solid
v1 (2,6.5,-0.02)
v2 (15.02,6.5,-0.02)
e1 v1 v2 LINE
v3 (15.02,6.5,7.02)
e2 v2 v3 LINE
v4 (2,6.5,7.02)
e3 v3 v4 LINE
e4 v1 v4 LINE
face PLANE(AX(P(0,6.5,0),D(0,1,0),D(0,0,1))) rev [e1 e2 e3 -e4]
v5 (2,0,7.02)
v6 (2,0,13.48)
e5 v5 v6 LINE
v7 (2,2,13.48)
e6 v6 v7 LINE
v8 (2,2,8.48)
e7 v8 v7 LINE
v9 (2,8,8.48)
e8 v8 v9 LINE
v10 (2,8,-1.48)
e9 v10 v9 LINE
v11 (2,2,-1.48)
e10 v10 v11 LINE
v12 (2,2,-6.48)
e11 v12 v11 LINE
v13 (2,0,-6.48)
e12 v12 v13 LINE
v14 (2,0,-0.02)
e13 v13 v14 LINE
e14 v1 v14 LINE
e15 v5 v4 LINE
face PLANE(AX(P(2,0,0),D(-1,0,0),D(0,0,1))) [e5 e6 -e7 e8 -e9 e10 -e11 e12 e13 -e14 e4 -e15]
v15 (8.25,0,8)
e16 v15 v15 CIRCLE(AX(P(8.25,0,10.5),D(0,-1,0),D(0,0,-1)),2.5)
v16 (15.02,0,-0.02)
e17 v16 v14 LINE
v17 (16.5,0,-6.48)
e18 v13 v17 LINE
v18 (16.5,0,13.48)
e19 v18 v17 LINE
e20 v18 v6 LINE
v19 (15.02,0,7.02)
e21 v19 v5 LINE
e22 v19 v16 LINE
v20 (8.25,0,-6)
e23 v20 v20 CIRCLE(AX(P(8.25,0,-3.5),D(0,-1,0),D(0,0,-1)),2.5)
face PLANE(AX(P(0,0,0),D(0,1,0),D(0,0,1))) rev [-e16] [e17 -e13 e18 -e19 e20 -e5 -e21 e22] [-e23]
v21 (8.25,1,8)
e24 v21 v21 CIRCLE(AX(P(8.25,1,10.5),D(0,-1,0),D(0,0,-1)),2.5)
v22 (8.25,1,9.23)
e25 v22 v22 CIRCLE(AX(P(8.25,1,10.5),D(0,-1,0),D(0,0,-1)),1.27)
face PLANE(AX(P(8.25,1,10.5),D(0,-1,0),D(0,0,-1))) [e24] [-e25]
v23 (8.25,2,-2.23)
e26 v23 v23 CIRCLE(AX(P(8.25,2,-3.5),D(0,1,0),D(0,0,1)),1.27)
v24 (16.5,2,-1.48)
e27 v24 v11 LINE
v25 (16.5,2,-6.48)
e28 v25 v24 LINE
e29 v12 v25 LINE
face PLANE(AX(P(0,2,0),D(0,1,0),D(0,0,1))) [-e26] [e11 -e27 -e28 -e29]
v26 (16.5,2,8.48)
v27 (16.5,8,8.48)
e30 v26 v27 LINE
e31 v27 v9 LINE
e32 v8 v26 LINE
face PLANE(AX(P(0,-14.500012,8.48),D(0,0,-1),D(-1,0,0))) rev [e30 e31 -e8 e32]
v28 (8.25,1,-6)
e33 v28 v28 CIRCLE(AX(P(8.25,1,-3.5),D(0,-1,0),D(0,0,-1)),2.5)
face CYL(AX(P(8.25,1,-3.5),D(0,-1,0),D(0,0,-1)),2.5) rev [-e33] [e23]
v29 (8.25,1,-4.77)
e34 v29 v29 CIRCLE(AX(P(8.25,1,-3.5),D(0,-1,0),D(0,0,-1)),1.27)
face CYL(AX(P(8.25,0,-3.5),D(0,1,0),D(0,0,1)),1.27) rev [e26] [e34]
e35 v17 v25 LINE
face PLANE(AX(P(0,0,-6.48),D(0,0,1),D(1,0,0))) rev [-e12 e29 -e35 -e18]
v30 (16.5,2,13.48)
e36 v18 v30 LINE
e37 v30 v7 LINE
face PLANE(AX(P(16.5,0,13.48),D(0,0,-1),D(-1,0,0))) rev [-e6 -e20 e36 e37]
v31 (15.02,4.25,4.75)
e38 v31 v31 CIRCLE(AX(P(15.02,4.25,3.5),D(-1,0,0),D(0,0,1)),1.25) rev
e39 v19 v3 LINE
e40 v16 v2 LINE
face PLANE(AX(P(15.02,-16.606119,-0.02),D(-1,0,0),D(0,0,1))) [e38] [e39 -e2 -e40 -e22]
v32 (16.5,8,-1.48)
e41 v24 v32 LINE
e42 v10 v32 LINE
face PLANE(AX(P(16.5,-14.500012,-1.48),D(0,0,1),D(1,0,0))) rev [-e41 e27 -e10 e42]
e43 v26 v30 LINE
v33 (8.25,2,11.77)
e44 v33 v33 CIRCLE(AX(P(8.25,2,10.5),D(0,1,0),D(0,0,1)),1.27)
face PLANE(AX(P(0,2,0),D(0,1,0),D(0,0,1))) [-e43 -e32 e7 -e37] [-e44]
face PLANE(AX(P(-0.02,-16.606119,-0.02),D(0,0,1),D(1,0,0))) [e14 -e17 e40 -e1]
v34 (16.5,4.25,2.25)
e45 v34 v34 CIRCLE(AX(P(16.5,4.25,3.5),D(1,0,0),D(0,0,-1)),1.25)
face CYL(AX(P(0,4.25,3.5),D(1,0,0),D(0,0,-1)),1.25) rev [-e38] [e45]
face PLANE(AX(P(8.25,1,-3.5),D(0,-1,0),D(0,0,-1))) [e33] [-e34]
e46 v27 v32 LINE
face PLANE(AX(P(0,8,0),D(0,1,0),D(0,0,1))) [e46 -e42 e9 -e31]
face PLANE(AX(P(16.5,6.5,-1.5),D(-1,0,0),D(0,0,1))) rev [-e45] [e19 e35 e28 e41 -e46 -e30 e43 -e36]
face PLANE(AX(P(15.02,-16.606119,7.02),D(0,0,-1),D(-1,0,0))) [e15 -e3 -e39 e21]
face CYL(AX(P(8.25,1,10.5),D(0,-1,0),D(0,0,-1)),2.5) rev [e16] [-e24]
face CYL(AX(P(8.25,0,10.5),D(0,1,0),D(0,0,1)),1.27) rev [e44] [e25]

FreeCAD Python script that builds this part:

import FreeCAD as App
import Part
import Sketcher


def add_polygon(sketch, points):
    """Adds a closed chain of lines whose ends are joined by coincident constraints."""
    first, n = sketch.GeometryCount, len(points)
    for a, b in zip(points, points[1:] + points[:1]):
        sketch.addGeometry(Part.LineSegment(App.Vector(*a, 0), App.Vector(*b, 0)), False)
    for i in range(n):
        sketch.addConstraint(Sketcher.Constraint("Coincident", first + i, 2, first + (i + 1) % n, 1))

doc = App.newDocument("Part")
params = doc.addObject("Spreadsheet::Sheet", "Params")
for row, (alias, value) in enumerate([
    ("sketch1_width", "15 mm"),
    ("sketch1_height", "7 mm"),
    ("sketch1_height2", "10 mm"),
    ("sketch1_width2", "16.5 mm"),
    ("pad1_length", "6.5 mm"),
    ("sketch2_height", "10 mm"),
    ("sketch2_width", "16.5 mm"),
    ("pad2_length", "1.5 mm"),
    ("sketch3_diameter", "2.5 mm"),
    ("sketch4_height", "5 mm"),
    ("sketch4_width", "16.5 mm"),
    ("pad3_length", "2 mm"),
    ("sketch5_diameter", "2.5 mm"),
    ("pocket2_length", "10 mm"),
    ("sketch6_diameter", "5 mm"),
    ("pocket3_length", "1 mm"),
    ("sketch7_diameter", "2.54 mm"),
    ("sketch8_width", "16.5 mm"),
    ("sketch9_width", "16.5 mm"),
    ("sketch9_height", "0.02 mm"),
    ("pocket6_length", "23.758743 mm"),
    ("pocket6_length2", "6 mm"),
    ("sketch10_width", "15.04 mm"),
    ("sketch10_height", "7.04 mm"),
    ("pocket7_length", "6.5 mm"),
    ("pocket8_length", "2 mm"),
], start=1):
    params.set(f"A{row}", alias)
    params.set(f"B{row}", "=" + value)
    params.setAlias(f"B{row}", alias)

body = doc.addObject("PartDesign::Body", "Body")

sketch1 = doc.addObject("Sketcher::SketchObject", "Sketch")
body.addObject(sketch1)
sketch1.AttachmentSupport = (doc.XZ_Plane, [""])
sketch1.MapMode = "FlatFace"
add_polygon(sketch1, [(16.5, -1.5), (0, -1.5), (0, 0), (15, 0), (15, 7), (0, 7), (0, 8.5), (16.5, 8.5)])
sketch1.addConstraint([
    Sketcher.Constraint("Horizontal", 0),
    Sketcher.Constraint("Vertical", 1),
    Sketcher.Constraint("Horizontal", 2),
    Sketcher.Constraint("Vertical", 3),
    Sketcher.Constraint("Horizontal", 4),
    Sketcher.Constraint("Vertical", 5),
    Sketcher.Constraint("Horizontal", 6),
    Sketcher.Constraint("Vertical", 7),
    Sketcher.Constraint("Coincident", 1, 2, -1, 1),
    Sketcher.Constraint("PointOnObject", 4, 2, -2),
    Sketcher.Constraint("Equal", 1, 5),
    Sketcher.Constraint("DistanceX", 2, 1, 2, 2, 15.0),
    Sketcher.Constraint("DistanceY", 3, 1, 3, 2, 7.0),
    Sketcher.Constraint("DistanceY", 7, 2, 7, 1, 10.0),
    Sketcher.Constraint("DistanceX", 0, 2, 0, 1, 16.5),
])
sketch1.setExpression("Constraints[19]", "Params.sketch1_width")
sketch1.setExpression("Constraints[20]", "Params.sketch1_height")
sketch1.setExpression("Constraints[21]", "Params.sketch1_height2")
sketch1.setExpression("Constraints[22]", "Params.sketch1_width2")
pad1 = doc.addObject("PartDesign::Pad", "Pad")
body.addObject(pad1)
pad1.Profile = sketch1
pad1.setExpression("Length", "Params.pad1_length")
pad1.Reversed = True

sketch2 = doc.addObject("Sketcher::SketchObject", "Sketch001")
body.addObject(sketch2)
sketch2.AttachmentSupport = (doc.XZ_Plane, [""])
sketch2.MapMode = "FlatFace"
sketch2.AttachmentOffset = App.Placement(App.Vector(0, 0, -6.5), App.Rotation())
add_polygon(sketch2, [(0, 8), (16, 8), (16, -2), (0, -2)])
sketch2.addConstraint([
    Sketcher.Constraint("Horizontal", 0),
    Sketcher.Constraint("Vertical", 1),
    Sketcher.Constraint("Horizontal", 2),
    Sketcher.Constraint("Vertical", 3),
    Sketcher.Constraint("PointOnObject", 2, 2, -2),
    Sketcher.Constraint("DistanceY", 1, 2, 1, 1, 10.0),
    Sketcher.Constraint("DistanceX", 0, 1, 0, 2, 16.5),
    Sketcher.Constraint("DistanceY", -1, 1, 0, 2, 8.5),
])
sketch2.setExpression("Constraints[9]", "Params.sketch2_height")
sketch2.setExpression("Constraints[10]", "Params.sketch2_width")
pad2 = doc.addObject("PartDesign::Pad", "Pad001")
body.addObject(pad2)
pad2.Profile = sketch2
pad2.setExpression("Length", "Params.pad2_length")
pad2.Reversed = True

sketch3 = doc.addObject("Sketcher::SketchObject", "Sketch002")
body.addObject(sketch3)
sketch3.AttachmentSupport = (doc.YZ_Plane, [""])
sketch3.MapMode = "FlatFace"
sketch3.AttachmentOffset = App.Placement(App.Vector(0, 0, 16.5), App.Rotation())
sketch3.addGeometry(Part.Circle(App.Vector(4.2, 3.5, 0), App.Vector(0, 0, 1), 1.2), False)
sketch3.addConstraint([
    Sketcher.Constraint("Diameter", 0, 2.5),
    Sketcher.Constraint("DistanceY", -1, 1, 0, 3, 3.5),
    Sketcher.Constraint("DistanceX", -1, 1, 0, 3, 4.25),
])
sketch3.setExpression("Constraints[0]", "Params.sketch3_diameter")
pocket1 = doc.addObject("PartDesign::Pocket", "Pocket")
body.addObject(pocket1)
pocket1.Profile = sketch3
pocket1.Type = "ThroughAll"

sketch4 = doc.addObject("Sketcher::SketchObject", "Sketch003")
body.addObject(sketch4)
sketch4.AttachmentSupport = (doc.XZ_Plane, [""])
sketch4.MapMode = "FlatFace"
add_polygon(sketch4, [(0, 14), (0, 8), (16, 8), (16, 14)])
add_polygon(sketch4, [(0, -2), (0, -6), (16, -6), (16, -2)])
sketch4.addConstraint([
    Sketcher.Constraint("Vertical", 0),
    Sketcher.Constraint("Horizontal", 1),
    Sketcher.Constraint("Vertical", 2),
    Sketcher.Constraint("Horizontal", 3),
    Sketcher.Constraint("Vertical", 4),
    Sketcher.Constraint("Horizontal", 5),
    Sketcher.Constraint("Vertical", 6),
    Sketcher.Constraint("Horizontal", 7),
    Sketcher.Constraint("PointOnObject", 0, 2, -2),
    Sketcher.Constraint("PointOnObject", 4, 2, -2),
    Sketcher.Constraint("Vertical", 2, 2, 5, 2),
    Sketcher.Constraint("Equal", 2, 4),
    Sketcher.Constraint("DistanceY", 0, 2, 0, 1, 5.0),
    Sketcher.Constraint("DistanceX", 1, 1, 1, 2, 16.5),
    Sketcher.Constraint("DistanceY", 4, 2, 0, 2, 15.0),
    Sketcher.Constraint("DistanceY", -1, 1, 0, 2, 8.5),
])
sketch4.setExpression("Constraints[20]", "Params.sketch4_height")
sketch4.setExpression("Constraints[21]", "Params.sketch4_width")
pad3 = doc.addObject("PartDesign::Pad", "Pad002")
body.addObject(pad3)
pad3.Profile = sketch4
pad3.setExpression("Length", "Params.pad3_length")
pad3.Reversed = True

sketch5 = doc.addObject("Sketcher::SketchObject", "Sketch004")
body.addObject(sketch5)
sketch5.AttachmentSupport = (doc.XZ_Plane, [""])
sketch5.MapMode = "FlatFace"
sketch5.addGeometry([
    Part.Circle(App.Vector(8.2, 10.5, 0), App.Vector(0, 0, 1), 1.2),
    Part.Circle(App.Vector(8.2, -3.5, 0), App.Vector(0, 0, 1), 1.2),
], False)
sketch5.addConstraint([
    Sketcher.Constraint("Equal", 0, 1),
    Sketcher.Constraint("Vertical", 0, 3, 1, 3),
    Sketcher.Constraint("Diameter", 0, 2.5),
    Sketcher.Constraint("DistanceY", 1, 3, 0, 3, 14.0),
    Sketcher.Constraint("DistanceY", -1, 1, 0, 3, 10.5),
    Sketcher.Constraint("DistanceX", -1, 1, 0, 3, 8.25),
])
sketch5.setExpression("Constraints[2]", "Params.sketch5_diameter")
pocket2 = doc.addObject("PartDesign::Pocket", "Pocket001")
body.addObject(pocket2)
pocket2.Profile = sketch5
pocket2.setExpression("Length", "Params.pocket2_length")

sketch6 = doc.addObject("Sketcher::SketchObject", "Sketch005")
body.addObject(sketch6)
sketch6.AttachmentSupport = (doc.XZ_Plane, [""])
sketch6.MapMode = "FlatFace"
sketch6.addGeometry([
    Part.Circle(App.Vector(8.2, 10.5, 0), App.Vector(0, 0, 1), 2.5),
    Part.Circle(App.Vector(8.2, -3.5, 0), App.Vector(0, 0, 1), 2.5),
], False)
sketch6.addConstraint([
    Sketcher.Constraint("Equal", 0, 1),
    Sketcher.Constraint("Vertical", 0, 3, 1, 3),
    Sketcher.Constraint("Diameter", 0, 5.0),
    Sketcher.Constraint("DistanceY", 1, 3, 0, 3, 14.0),
    Sketcher.Constraint("DistanceY", -1, 1, 0, 3, 10.5),
    Sketcher.Constraint("DistanceX", -1, 1, 0, 3, 8.25),
])
sketch6.setExpression("Constraints[2]", "Params.sketch6_diameter")
pocket3 = doc.addObject("PartDesign::Pocket", "Pocket002")
body.addObject(pocket3)
pocket3.Profile = sketch6
pocket3.setExpression("Length", "Params.pocket3_length")

sketch7 = doc.addObject("Sketcher::SketchObject", "Sketch006")
body.addObject(sketch7)
sketch7.AttachmentSupport = (doc.XZ_Plane, [""])
sketch7.MapMode = "FlatFace"
sketch7.AttachmentOffset = App.Placement(App.Vector(0, 0, -2), App.Rotation())
sketch7.addGeometry([
    Part.Circle(App.Vector(8.2, -3.5, 0), App.Vector(0, 0, 1), 1.3),
    Part.Circle(App.Vector(8.2, 10.5, 0), App.Vector(0, 0, 1), 1.3),
], False)
sketch7.addConstraint([
    Sketcher.Constraint("Equal", 0, 1),
    Sketcher.Constraint("Vertical", 0, 3, 1, 3),
    Sketcher.Constraint("Diameter", 0, 2.54),
    Sketcher.Constraint("DistanceY", 0, 3, 1, 3, 14.0),
    Sketcher.Constraint("DistanceY", 0, 3, -1, 1, 3.5),
    Sketcher.Constraint("DistanceX", -1, 1, 0, 3, 8.25),
])
sketch7.setExpression("Constraints[2]", "Params.sketch7_diameter")
pocket4 = doc.addObject("PartDesign::Pocket", "Pocket003")
body.addObject(pocket4)
pocket4.Profile = sketch7
pocket4.Type = "ThroughAll"
pocket4.Midplane = True

sketch8 = doc.addObject("Sketcher::SketchObject", "Sketch007")
body.addObject(sketch8)
sketch8.AttachmentSupport = (doc.XZ_Plane, [""])
sketch8.MapMode = "FlatFace"
sketch8.AttachmentOffset = App.Placement(App.Vector(0, 0, -2), App.Rotation())
add_polygon(sketch8, [(0, -6.71), (0, -6.48), (16.5, -6.48), (16.5, -6.71)])
add_polygon(sketch8, [(0, 13.48), (0, 13.84), (16.5, 13.84), (16.5, 13.48)])
sketch8.addConstraint([
    Sketcher.Constraint("Vertical", 0),
    Sketcher.Constraint("Horizontal", 1),
    Sketcher.Constraint("Vertical", 2),
    Sketcher.Constraint("Horizontal", 3),
    Sketcher.Constraint("Vertical", 4),
    Sketcher.Constraint("Horizontal", 5),
    Sketcher.Constraint("Vertical", 6),
    Sketcher.Constraint("Horizontal", 7),
    Sketcher.Constraint("PointOnObject", 0, 2, -2),
    Sketcher.Constraint("PointOnObject", 4, 2, -2),
    Sketcher.Constraint("Vertical", 2, 2, 5, 2),
    Sketcher.Constraint("DistanceX", 1, 1, 1, 2, 16.5),
    Sketcher.Constraint("DistanceY", 0, 2, -1, 1, 6.48),
    Sketcher.Constraint("DistanceY", -1, 1, 6, 2, 13.48),
    Sketcher.Constraint("DistanceY", 0, 1, 0, 2, 0.229722),
    Sketcher.Constraint("DistanceY", 4, 1, 4, 2, 0.35581),
])
sketch8.setExpression("Constraints[19]", "Params.sketch8_width")
pocket5 = doc.addObject("PartDesign::Pocket", "Pocket004")
body.addObject(pocket5)
pocket5.Profile = sketch8
pocket5.Type = "ThroughAll"
pocket5.Midplane = True

sketch9 = doc.addObject("Sketcher::SketchObject", "Sketch008")
body.addObject(sketch9)
sketch9.AttachmentSupport = (doc.XZ_Plane, [""])
sketch9.MapMode = "FlatFace"
sketch9.AttachmentOffset = App.Placement(App.Vector(0, 0, -8), App.Rotation())
add_polygon(sketch9, [(0, 8.48), (0, 8.5), (16.5, 8.5), (16.5, 8.48)])
add_polygon(sketch9, [(0, -1.5), (0, -1.48), (16.5, -1.48), (16.5, -1.5)])
sketch9.addConstraint([
    Sketcher.Constraint("Vertical", 0),
    Sketcher.Constraint("Horizontal", 1),
    Sketcher.Constraint("Vertical", 2),
    Sketcher.Constraint("Horizontal", 3),
    Sketcher.Constraint("Vertical", 4),
    Sketcher.Constraint("Horizontal", 5),
    Sketcher.Constraint("Vertical", 6),
    Sketcher.Constraint("Horizontal", 7),
    Sketcher.Constraint("PointOnObject", 0, 2, -2),
    Sketcher.Constraint("PointOnObject", 4, 2, -2),
    Sketcher.Constraint("Vertical", 2, 2, 5, 2),
    Sketcher.Constraint("Equal", 2, 4),
    Sketcher.Constraint("DistanceX", 1, 1, 1, 2, 16.5),
    Sketcher.Constraint("DistanceY", 6, 2, 1, 2, 10.0),
    Sketcher.Constraint("DistanceY", 0, 1, 0, 2, 0.02),
    Sketcher.Constraint("DistanceY", -1, 1, 0, 2, 8.5),
])
sketch9.setExpression("Constraints[20]", "Params.sketch9_width")
sketch9.setExpression("Constraints[22]", "Params.sketch9_height")
pocket6 = doc.addObject("PartDesign::Pocket", "Pocket005")
body.addObject(pocket6)
pocket6.Profile = sketch9
pocket6.Type = "TwoLengths"
pocket6.setExpression("Length", "Params.pocket6_length")
pocket6.setExpression("Length2", "Params.pocket6_length2")

sketch10 = doc.addObject("Sketcher::SketchObject", "Sketch009")
body.addObject(sketch10)
sketch10.AttachmentSupport = (doc.XZ_Plane, [""])
sketch10.MapMode = "FlatFace"
sketch10.AttachmentOffset = App.Placement(App.Vector(0, 0, -6.5), App.Rotation())
add_polygon(sketch10, [(0, 7), (0, 0), (15, 0), (15, 7)])
sketch10.addConstraint([
    Sketcher.Constraint("Vertical", 0),
    Sketcher.Constraint("Horizontal", 1),
    Sketcher.Constraint("Vertical", 2),
    Sketcher.Constraint("Horizontal", 3),
    Sketcher.Constraint("DistanceX", 1, 1, 1, 2, 15.04),
    Sketcher.Constraint("DistanceY", 0, 2, 0, 1, 7.04),
    Sketcher.Constraint("DistanceX", 0, 2, -1, 1, 0.02),
    Sketcher.Constraint("DistanceY", 0, 2, -1, 1, 0.02),
])
sketch10.setExpression("Constraints[8]", "Params.sketch10_width")
sketch10.setExpression("Constraints[9]", "Params.sketch10_height")
pocket7 = doc.addObject("PartDesign::Pocket", "Pocket006")
body.addObject(pocket7)
pocket7.Profile = sketch10
pocket7.setExpression("Length", "Params.pocket7_length")
pocket7.Reversed = True

sketch11 = doc.addObject("Sketcher::SketchObject", "Sketch010")
body.addObject(sketch11)
sketch11.AttachmentSupport = (doc.YZ_Plane, [""])
sketch11.MapMode = "FlatFace"
add_polygon(sketch11, [(10, -9), (-3, -9), (-3, 19), (10, 19)])
sketch11.addConstraint([
    Sketcher.Constraint("Horizontal", 0),
    Sketcher.Constraint("Vertical", 1),
    Sketcher.Constraint("Horizontal", 2),
    Sketcher.Constraint("Vertical", 3),
    Sketcher.Constraint("DistanceY", 1, 1, 1, 2, 27.526079),
    Sketcher.Constraint("DistanceY", -1, 1, 1, 2, 18.846398),
    Sketcher.Constraint("DistanceX", 0, 2, 0, 1, 12.932607),
    Sketcher.Constraint("DistanceX", 0, 2, -1, 1, 2.831694),
])
pocket8 = doc.addObject("PartDesign::Pocket", "Pocket007")
body.addObject(pocket8)
pocket8.Profile = sketch11
pocket8.setExpression("Length", "Params.pocket8_length")
pocket8.Reversed = True

doc.recompute()
